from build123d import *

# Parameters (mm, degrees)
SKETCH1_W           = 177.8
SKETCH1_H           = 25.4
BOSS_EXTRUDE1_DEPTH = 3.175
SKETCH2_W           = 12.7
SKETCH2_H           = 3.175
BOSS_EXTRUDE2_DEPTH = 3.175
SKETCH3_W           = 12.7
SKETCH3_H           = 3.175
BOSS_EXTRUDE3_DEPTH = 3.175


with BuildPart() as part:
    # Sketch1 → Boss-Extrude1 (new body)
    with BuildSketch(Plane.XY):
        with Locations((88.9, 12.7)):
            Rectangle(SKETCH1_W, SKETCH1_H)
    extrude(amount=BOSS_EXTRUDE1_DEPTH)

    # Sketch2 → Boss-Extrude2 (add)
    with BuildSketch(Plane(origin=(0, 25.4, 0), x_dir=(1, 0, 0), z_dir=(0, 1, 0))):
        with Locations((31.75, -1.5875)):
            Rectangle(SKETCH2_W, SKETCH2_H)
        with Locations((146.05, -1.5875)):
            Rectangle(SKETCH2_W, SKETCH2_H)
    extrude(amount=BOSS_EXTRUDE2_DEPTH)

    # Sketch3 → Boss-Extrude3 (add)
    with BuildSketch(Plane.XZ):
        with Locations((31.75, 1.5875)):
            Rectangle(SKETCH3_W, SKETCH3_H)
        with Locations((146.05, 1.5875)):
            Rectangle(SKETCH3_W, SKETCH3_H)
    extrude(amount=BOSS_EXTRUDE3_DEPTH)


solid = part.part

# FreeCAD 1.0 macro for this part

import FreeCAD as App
import Part
import Sketcher
from FreeCAD import Vector
Q = App.Units.Quantity

doc = App.newDocument("Part")
params = doc.addObject("Spreadsheet::Sheet", "Params")
for row, (alias, value) in enumerate([
    ("sketch1_width", "7 in"),
    ("sketch1_height", "1 in"),
    ("pad1_length", "0.125 in"),
    ("sketch2_width", "0.5 in"),
    ("sketch2_height", "0.125 in"),
    ("pad2_length", "0.125 in"),
    ("sketch3_width", "0.5 in"),
    ("sketch3_height", "0.125 in"),
    ("pad3_length", "0.125 in"),
], start=1):
    params.set(f"A{row}", alias)
    params.set(f"B{row}", "=" + value)
    params.setAlias(f"B{row}", alias)

body = doc.addObject("PartDesign::Body", "Body")

# Sketch on XY plane
sketch1 = body.newObject("Sketcher::SketchObject", "Sketch")
sketch1.AttachmentSupport = (doc.getObject("XY_Plane"), [""])
sketch1.MapMode = "FlatFace"
sketch1.addGeometry(Part.LineSegment(Vector(0, 25.4, 0), Vector(0, 0, 0)), False)
sketch1.addGeometry(Part.LineSegment(Vector(0, 0, 0), Vector(177.8, 0, 0)), False)
sketch1.addGeometry(Part.LineSegment(Vector(177.8, 0, 0), Vector(177.8, 25.4, 0)), False)
sketch1.addGeometry(Part.LineSegment(Vector(177.8, 25.4, 0), Vector(0, 25.4, 0)), False)
sketch1.addConstraint(Sketcher.Constraint("Coincident", 0, 2, 1, 1))
sketch1.addConstraint(Sketcher.Constraint("Coincident", 1, 2, 2, 1))
sketch1.addConstraint(Sketcher.Constraint("Coincident", 2, 2, 3, 1))
sketch1.addConstraint(Sketcher.Constraint("Coincident", 3, 2, 0, 1))
sketch1.addConstraint(Sketcher.Constraint("Vertical", 0))
sketch1.addConstraint(Sketcher.Constraint("Horizontal", 1))
sketch1.addConstraint(Sketcher.Constraint("Vertical", 2))
sketch1.addConstraint(Sketcher.Constraint("Horizontal", 3))
sketch1.addConstraint(Sketcher.Constraint("Coincident", 0, 2, -1, 1))
sketch1.addConstraint(Sketcher.Constraint("DistanceX", 1, 1, 1, 2, Q("7 in")))
sketch1.addConstraint(Sketcher.Constraint("DistanceY", 0, 2, 0, 1, Q("1 in")))
sketch1.setExpression("Constraints[9]", "Params.sketch1_width")
sketch1.setExpression("Constraints[10]", "Params.sketch1_height")
pad1 = body.newObject("PartDesign::Pad", "Pad")
pad1.Profile = sketch1
pad1.setExpression("Length", "Params.pad1_length")

# Sketch on XZ plane
sketch2 = body.newObject("Sketcher::SketchObject", "Sketch001")
sketch2.AttachmentSupport = (doc.getObject("XZ_Plane"), [""])
sketch2.MapMode = "FlatFace"
sketch2.AttachmentOffset = App.Placement(Vector(0, 0, -1 * 25.4), App.Rotation())
sketch2.addGeometry(Part.LineSegment(Vector(25.4, 0, 0), Vector(25.4, 3.175, 0)), False)
sketch2.addGeometry(Part.LineSegment(Vector(25.4, 3.175, 0), Vector(38.1, 3.175, 0)), False)
sketch2.addGeometry(Part.LineSegment(Vector(38.1, 3.175, 0), Vector(38.1, 0, 0)), False)
sketch2.addGeometry(Part.LineSegment(Vector(38.1, 0, 0), Vector(25.4, 0, 0)), False)
sketch2.addGeometry(Part.LineSegment(Vector(139.7, 0, 0), Vector(139.7, 3.175, 0)), False)
sketch2.addGeometry(Part.LineSegment(Vector(139.7, 3.175, 0), Vector(152.4, 3.175, 0)), False)
sketch2.addGeometry(Part.LineSegment(Vector(152.4, 3.175, 0), Vector(152.4, 0, 0)), False)
sketch2.addGeometry(Part.LineSegment(Vector(152.4, 0, 0), Vector(139.7, 0, 0)), False)
sketch2.addConstraint(Sketcher.Constraint("Coincident", 0, 2, 1, 1))
sketch2.addConstraint(Sketcher.Constraint("Coincident", 1, 2, 2, 1))
sketch2.addConstraint(Sketcher.Constraint("Coincident", 2, 2, 3, 1))
sketch2.addConstraint(Sketcher.Constraint("Coincident", 3, 2, 0, 1))
sketch2.addConstraint(Sketcher.Constraint("Coincident", 4, 2, 5, 1))
sketch2.addConstraint(Sketcher.Constraint("Coincident", 5, 2, 6, 1))
sketch2.addConstraint(Sketcher.Constraint("Coincident", 6, 2, 7, 1))
sketch2.addConstraint(Sketcher.Constraint("Coincident", 7, 2, 4, 1))
sketch2.addConstraint(Sketcher.Constraint("Vertical", 0))
sketch2.addConstraint(Sketcher.Constraint("Horizontal", 1))
sketch2.addConstraint(Sketcher.Constraint("Vertical", 2))
sketch2.addConstraint(Sketcher.Constraint("Horizontal", 3))
sketch2.addConstraint(Sketcher.Constraint("Vertical", 4))
sketch2.addConstraint(Sketcher.Constraint("Horizontal", 5))
sketch2.addConstraint(Sketcher.Constraint("Vertical", 6))
sketch2.addConstraint(Sketcher.Constraint("Horizontal", 7))
sketch2.addConstraint(Sketcher.Constraint("PointOnObject", 2, 2, -1))
sketch2.addConstraint(Sketcher.Constraint("PointOnObject", 6, 2, -1))
sketch2.addConstraint(Sketcher.Constraint("Horizontal", 1, 2, 4, 2))
sketch2.addConstraint(Sketcher.Constraint("Equal", 3, 5))
sketch2.addConstraint(Sketcher.Constraint("DistanceX", 1, 1, 1, 2, Q("0.5 in")))
sketch2.addConstraint(Sketcher.Constraint("DistanceX", -1, 1, 0, 2, Q("1 in")))
sketch2.addConstraint(Sketcher.Constraint("DistanceX", -1, 1, 5, 2, Q("6 in")))
sketch2.addConstraint(Sketcher.Constraint("DistanceY", 0, 1, 0, 2, Q("0.125 in")))
sketch2.setExpression("Constraints[20]", "Params.sketch2_width")
sketch2.setExpression("Constraints[23]", "Params.sketch2_height")
pad2 = body.newObject("PartDesign::Pad", "Pad001")
pad2.Profile = sketch2
pad2.setExpression("Length", "Params.pad2_length")
pad2.Reversed = True

# Sketch on XZ plane
sketch3 = body.newObject("Sketcher::SketchObject", "Sketch002")
sketch3.AttachmentSupport = (doc.getObject("XZ_Plane"), [""])
sketch3.MapMode = "FlatFace"
sketch3.addGeometry(Part.LineSegment(Vector(25.4, 3.175, 0), Vector(25.4, 0, 0)), False)
sketch3.addGeometry(Part.LineSegment(Vector(25.4, 0, 0), Vector(38.1, 0, 0)), False)
sketch3.addGeometry(Part.LineSegment(Vector(38.1, 0, 0), Vector(38.1, 3.175, 0)), False)
sketch3.addGeometry(Part.LineSegment(Vector(38.1, 3.175, 0), Vector(25.4, 3.175, 0)), False)
sketch3.addGeometry(Part.LineSegment(Vector(139.7, 3.175, 0), Vector(139.7, 0, 0)), False)
sketch3.addGeometry(Part.LineSegment(Vector(139.7, 0, 0), Vector(152.4, 0, 0)), False)
sketch3.addGeometry(Part.LineSegment(Vector(152.4, 0, 0), Vector(152.4, 3.175, 0)), False)
sketch3.addGeometry(Part.LineSegment(Vector(152.4, 3.175, 0), Vector(139.7, 3.175, 0)), False)
sketch3.addConstraint(Sketcher.Constraint("Coincident", 0, 2, 1, 1))
sketch3.addConstraint(Sketcher.Constraint("Coincident", 1, 2, 2, 1))
sketch3.addConstraint(Sketcher.Constraint("Coincident", 2, 2, 3, 1))
sketch3.addConstraint(Sketcher.Constraint("Coincident", 3, 2, 0, 1))
sketch3.addConstraint(Sketcher.Constraint("Coincident", 4, 2, 5, 1))
sketch3.addConstraint(Sketcher.Constraint("Coincident", 5, 2, 6, 1))
sketch3.addConstraint(Sketcher.Constraint("Coincident", 6, 2, 7, 1))
sketch3.addConstraint(Sketcher.Constraint("Coincident", 7, 2, 4, 1))
sketch3.addConstraint(Sketcher.Constraint("Vertical", 0))
sketch3.addConstraint(Sketcher.Constraint("Horizontal", 1))
sketch3.addConstraint(Sketcher.Constraint("Vertical", 2))
sketch3.addConstraint(Sketcher.Constraint("Horizontal", 3))
sketch3.addConstraint(Sketcher.Constraint("Vertical", 4))
sketch3.addConstraint(Sketcher.Constraint("Horizontal", 5))
sketch3.addConstraint(Sketcher.Constraint("Vertical", 6))
sketch3.addConstraint(Sketcher.Constraint("Horizontal", 7))
sketch3.addConstraint(Sketcher.Constraint("PointOnObject", 0, 2, -1))
sketch3.addConstraint(Sketcher.Constraint("PointOnObject", 4, 2, -1))
sketch3.addConstraint(Sketcher.Constraint("Horizontal", 3, 2, 6, 2))
sketch3.addConstraint(Sketcher.Constraint("Equal", 3, 5))
sketch3.addConstraint(Sketcher.Constraint("DistanceX", 1, 1, 1, 2, Q("0.5 in")))
sketch3.addConstraint(Sketcher.Constraint("DistanceX", -1, 1, 0, 2, Q("1 in")))
sketch3.addConstraint(Sketcher.Constraint("DistanceX", -1, 1, 5, 2, Q("6 in")))
sketch3.addConstraint(Sketcher.Constraint("DistanceY", 0, 2, 0, 1, Q("0.125 in")))
sketch3.setExpression("Constraints[20]", "Params.sketch3_width")
sketch3.setExpression("Constraints[23]", "Params.sketch3_height")
pad3 = body.newObject("PartDesign::Pad", "Pad002")
pad3.Profile = sketch3
pad3.setExpression("Length", "Params.pad3_length")

doc.recompute()
